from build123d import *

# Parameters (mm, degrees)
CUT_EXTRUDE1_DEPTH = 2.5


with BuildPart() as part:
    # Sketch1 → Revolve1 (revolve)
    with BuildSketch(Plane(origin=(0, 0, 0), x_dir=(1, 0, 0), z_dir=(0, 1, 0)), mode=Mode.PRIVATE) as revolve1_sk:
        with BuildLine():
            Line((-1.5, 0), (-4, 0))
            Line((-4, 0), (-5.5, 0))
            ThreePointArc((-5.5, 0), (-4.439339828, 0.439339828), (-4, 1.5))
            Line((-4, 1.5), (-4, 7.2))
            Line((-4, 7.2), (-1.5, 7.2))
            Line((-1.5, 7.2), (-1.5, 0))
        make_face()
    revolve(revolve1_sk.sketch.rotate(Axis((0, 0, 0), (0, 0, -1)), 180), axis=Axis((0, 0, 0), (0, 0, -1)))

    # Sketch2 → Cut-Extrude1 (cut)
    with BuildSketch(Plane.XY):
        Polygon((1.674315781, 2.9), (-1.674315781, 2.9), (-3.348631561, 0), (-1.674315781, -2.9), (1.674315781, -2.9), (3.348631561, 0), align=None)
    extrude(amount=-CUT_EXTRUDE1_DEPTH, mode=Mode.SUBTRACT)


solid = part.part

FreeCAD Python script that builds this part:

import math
import FreeCAD as App
import Part
import Sketcher
Q = App.Units.Quantity

doc = App.newDocument("Part")
params = doc.addObject("Spreadsheet::Sheet", "Params")
for row, (alias, value) in enumerate([
    ("sketch1_radius", "1.5 mm"),
    ("sketch1_width", "4 mm"),
    ("sketch1_height", "7.2 mm"),
    ("revolution_angle", "360 deg"),
    ("pocket1_length", "2.5 mm"),
], start=1):
    params.set(f"A{row}", alias)
    params.set(f"B{row}", "=" + value)
    params.setAlias(f"B{row}", alias)

body = doc.addObject("PartDesign::Body", "Body")

sketch1 = body.newObject("Sketcher::SketchObject", "Sketch")
sketch1.AttachmentSupport = (doc.getObject("XZ_Plane"), [""])
sketch1.MapMode = "FlatFace"
sketch1.addGeometry(Part.LineSegment(App.Vector(-5.5, 0, 0), App.Vector(-1.5, 0, 0)), False)
sketch1.addGeometry(Part.LineSegment(App.Vector(-1.5, 0, 0), App.Vector(-1.5, -7.2, 0)), False)
sketch1.addGeometry(Part.LineSegment(App.Vector(-1.5, -7.2, 0), App.Vector(-4, -7.2, 0)), False)
sketch1.addGeometry(Part.LineSegment(App.Vector(-4, -7.2, 0), App.Vector(-4, -1.5, 0)), False)
sketch1.addGeometry(Part.ArcOfCircle(Part.Circle(App.Vector(-5.5, -1.5, 0), App.Vector(0, 0, 1), 1.5), math.radians(0), math.radians(90)), False)
sketch1.addConstraint(Sketcher.Constraint("Coincident", 0, 2, 1, 1))
sketch1.addConstraint(Sketcher.Constraint("Coincident", 1, 2, 2, 1))
sketch1.addConstraint(Sketcher.Constraint("Coincident", 2, 2, 3, 1))
sketch1.addConstraint(Sketcher.Constraint("Tangent", 3, 2, 4, 1))
sketch1.addConstraint(Sketcher.Constraint("Tangent", 4, 2, 0, 1))
sketch1.addConstraint(Sketcher.Constraint("Horizontal", 0))
sketch1.addConstraint(Sketcher.Constraint("Vertical", 1))
sketch1.addConstraint(Sketcher.Constraint("Horizontal", 2))
sketch1.addConstraint(Sketcher.Constraint("Vertical", 3))
sketch1.addConstraint(Sketcher.Constraint("PointOnObject", 0, 2, -1))
sketch1.addConstraint(Sketcher.Constraint("Radius", 4, Q("1.5 mm")))
sketch1.addConstraint(Sketcher.Constraint("DistanceX", 0, 1, 0, 2, Q("4 mm")))
sketch1.addConstraint(Sketcher.Constraint("DistanceY", 1, 2, 1, 1, Q("7.2 mm")))
sketch1.addConstraint(Sketcher.Constraint("DistanceX", 2, 2, -1, 1, Q("4 mm")))
sketch1.setExpression("Constraints[10]", "Params.sketch1_radius")
sketch1.setExpression("Constraints[11]", "Params.sketch1_width")
sketch1.setExpression("Constraints[12]", "Params.sketch1_height")
revolution = body.newObject("PartDesign::Revolution", "Revolution")
revolution.Profile = sketch1
revolution.ReferenceAxis = (sketch1, ["V_Axis"])
revolution.setExpression("Angle", "Params.revolution_angle")

sketch2 = body.newObject("Sketcher::SketchObject", "Sketch001")
sketch2.AttachmentSupport = (doc.getObject("XY_Plane"), [""])
sketch2.MapMode = "FlatFace"
sketch2.addGeometry(Part.LineSegment(App.Vector(1.7, 2.9, 0), App.Vector(-1.7, 2.9, 0)), False)
sketch2.addGeometry(Part.LineSegment(App.Vector(-1.7, 2.9, 0), App.Vector(-3.3, 0, 0)), False)
sketch2.addGeometry(Part.LineSegment(App.Vector(-3.3, 0, 0), App.Vector(-1.7, -2.9, 0)), False)
sketch2.addGeometry(Part.LineSegment(App.Vector(-1.7, -2.9, 0), App.Vector(1.7, -2.9, 0)), False)
sketch2.addGeometry(Part.LineSegment(App.Vector(1.7, -2.9, 0), App.Vector(3.3, 0, 0)), False)
sketch2.addGeometry(Part.LineSegment(App.Vector(3.3, 0, 0), App.Vector(1.7, 2.9, 0)), False)
sketch2.addConstraint(Sketcher.Constraint("Coincident", 0, 2, 1, 1))
sketch2.addConstraint(Sketcher.Constraint("Coincident", 1, 2, 2, 1))
sketch2.addConstraint(Sketcher.Constraint("Coincident", 2, 2, 3, 1))
sketch2.addConstraint(Sketcher.Constraint("Coincident", 3, 2, 4, 1))
sketch2.addConstraint(Sketcher.Constraint("Coincident", 4, 2, 5, 1))
sketch2.addConstraint(Sketcher.Constraint("Coincident", 5, 2, 0, 1))
sketch2.addConstraint(Sketcher.Constraint("Horizontal", 0))
sketch2.addConstraint(Sketcher.Constraint("Horizontal", 3))
sketch2.addConstraint(Sketcher.Constraint("Symmetric", 0, 2, 3, 2, -1, 1))
sketch2.addConstraint(Sketcher.Constraint("Symmetric", 1, 2, 4, 2, -1, 1))
sketch2.addConstraint(Sketcher.Constraint("PointOnObject", 1, 2, -1))
sketch2.addConstraint(Sketcher.Constraint("Parallel", 2, 5))
sketch2.addConstraint(Sketcher.Constraint("Vertical", 0, 2, 2, 2))
sketch2.addConstraint(Sketcher.Constraint("Angle", 1, Q("-120 deg")))
sketch2.addConstraint(Sketcher.Constraint("DistanceY", -1, 1, 0, 2, Q("2.9 mm")))
sketch2.addConstraint(Sketcher.Constraint("DistanceX", 0, 2, 0, 1, Q("3.348632 mm")))
pocket1 = body.newObject("PartDesign::Pocket", "Pocket")
pocket1.Profile = sketch2
pocket1.setExpression("Length", "Params.pocket1_length")

doc.recompute()
